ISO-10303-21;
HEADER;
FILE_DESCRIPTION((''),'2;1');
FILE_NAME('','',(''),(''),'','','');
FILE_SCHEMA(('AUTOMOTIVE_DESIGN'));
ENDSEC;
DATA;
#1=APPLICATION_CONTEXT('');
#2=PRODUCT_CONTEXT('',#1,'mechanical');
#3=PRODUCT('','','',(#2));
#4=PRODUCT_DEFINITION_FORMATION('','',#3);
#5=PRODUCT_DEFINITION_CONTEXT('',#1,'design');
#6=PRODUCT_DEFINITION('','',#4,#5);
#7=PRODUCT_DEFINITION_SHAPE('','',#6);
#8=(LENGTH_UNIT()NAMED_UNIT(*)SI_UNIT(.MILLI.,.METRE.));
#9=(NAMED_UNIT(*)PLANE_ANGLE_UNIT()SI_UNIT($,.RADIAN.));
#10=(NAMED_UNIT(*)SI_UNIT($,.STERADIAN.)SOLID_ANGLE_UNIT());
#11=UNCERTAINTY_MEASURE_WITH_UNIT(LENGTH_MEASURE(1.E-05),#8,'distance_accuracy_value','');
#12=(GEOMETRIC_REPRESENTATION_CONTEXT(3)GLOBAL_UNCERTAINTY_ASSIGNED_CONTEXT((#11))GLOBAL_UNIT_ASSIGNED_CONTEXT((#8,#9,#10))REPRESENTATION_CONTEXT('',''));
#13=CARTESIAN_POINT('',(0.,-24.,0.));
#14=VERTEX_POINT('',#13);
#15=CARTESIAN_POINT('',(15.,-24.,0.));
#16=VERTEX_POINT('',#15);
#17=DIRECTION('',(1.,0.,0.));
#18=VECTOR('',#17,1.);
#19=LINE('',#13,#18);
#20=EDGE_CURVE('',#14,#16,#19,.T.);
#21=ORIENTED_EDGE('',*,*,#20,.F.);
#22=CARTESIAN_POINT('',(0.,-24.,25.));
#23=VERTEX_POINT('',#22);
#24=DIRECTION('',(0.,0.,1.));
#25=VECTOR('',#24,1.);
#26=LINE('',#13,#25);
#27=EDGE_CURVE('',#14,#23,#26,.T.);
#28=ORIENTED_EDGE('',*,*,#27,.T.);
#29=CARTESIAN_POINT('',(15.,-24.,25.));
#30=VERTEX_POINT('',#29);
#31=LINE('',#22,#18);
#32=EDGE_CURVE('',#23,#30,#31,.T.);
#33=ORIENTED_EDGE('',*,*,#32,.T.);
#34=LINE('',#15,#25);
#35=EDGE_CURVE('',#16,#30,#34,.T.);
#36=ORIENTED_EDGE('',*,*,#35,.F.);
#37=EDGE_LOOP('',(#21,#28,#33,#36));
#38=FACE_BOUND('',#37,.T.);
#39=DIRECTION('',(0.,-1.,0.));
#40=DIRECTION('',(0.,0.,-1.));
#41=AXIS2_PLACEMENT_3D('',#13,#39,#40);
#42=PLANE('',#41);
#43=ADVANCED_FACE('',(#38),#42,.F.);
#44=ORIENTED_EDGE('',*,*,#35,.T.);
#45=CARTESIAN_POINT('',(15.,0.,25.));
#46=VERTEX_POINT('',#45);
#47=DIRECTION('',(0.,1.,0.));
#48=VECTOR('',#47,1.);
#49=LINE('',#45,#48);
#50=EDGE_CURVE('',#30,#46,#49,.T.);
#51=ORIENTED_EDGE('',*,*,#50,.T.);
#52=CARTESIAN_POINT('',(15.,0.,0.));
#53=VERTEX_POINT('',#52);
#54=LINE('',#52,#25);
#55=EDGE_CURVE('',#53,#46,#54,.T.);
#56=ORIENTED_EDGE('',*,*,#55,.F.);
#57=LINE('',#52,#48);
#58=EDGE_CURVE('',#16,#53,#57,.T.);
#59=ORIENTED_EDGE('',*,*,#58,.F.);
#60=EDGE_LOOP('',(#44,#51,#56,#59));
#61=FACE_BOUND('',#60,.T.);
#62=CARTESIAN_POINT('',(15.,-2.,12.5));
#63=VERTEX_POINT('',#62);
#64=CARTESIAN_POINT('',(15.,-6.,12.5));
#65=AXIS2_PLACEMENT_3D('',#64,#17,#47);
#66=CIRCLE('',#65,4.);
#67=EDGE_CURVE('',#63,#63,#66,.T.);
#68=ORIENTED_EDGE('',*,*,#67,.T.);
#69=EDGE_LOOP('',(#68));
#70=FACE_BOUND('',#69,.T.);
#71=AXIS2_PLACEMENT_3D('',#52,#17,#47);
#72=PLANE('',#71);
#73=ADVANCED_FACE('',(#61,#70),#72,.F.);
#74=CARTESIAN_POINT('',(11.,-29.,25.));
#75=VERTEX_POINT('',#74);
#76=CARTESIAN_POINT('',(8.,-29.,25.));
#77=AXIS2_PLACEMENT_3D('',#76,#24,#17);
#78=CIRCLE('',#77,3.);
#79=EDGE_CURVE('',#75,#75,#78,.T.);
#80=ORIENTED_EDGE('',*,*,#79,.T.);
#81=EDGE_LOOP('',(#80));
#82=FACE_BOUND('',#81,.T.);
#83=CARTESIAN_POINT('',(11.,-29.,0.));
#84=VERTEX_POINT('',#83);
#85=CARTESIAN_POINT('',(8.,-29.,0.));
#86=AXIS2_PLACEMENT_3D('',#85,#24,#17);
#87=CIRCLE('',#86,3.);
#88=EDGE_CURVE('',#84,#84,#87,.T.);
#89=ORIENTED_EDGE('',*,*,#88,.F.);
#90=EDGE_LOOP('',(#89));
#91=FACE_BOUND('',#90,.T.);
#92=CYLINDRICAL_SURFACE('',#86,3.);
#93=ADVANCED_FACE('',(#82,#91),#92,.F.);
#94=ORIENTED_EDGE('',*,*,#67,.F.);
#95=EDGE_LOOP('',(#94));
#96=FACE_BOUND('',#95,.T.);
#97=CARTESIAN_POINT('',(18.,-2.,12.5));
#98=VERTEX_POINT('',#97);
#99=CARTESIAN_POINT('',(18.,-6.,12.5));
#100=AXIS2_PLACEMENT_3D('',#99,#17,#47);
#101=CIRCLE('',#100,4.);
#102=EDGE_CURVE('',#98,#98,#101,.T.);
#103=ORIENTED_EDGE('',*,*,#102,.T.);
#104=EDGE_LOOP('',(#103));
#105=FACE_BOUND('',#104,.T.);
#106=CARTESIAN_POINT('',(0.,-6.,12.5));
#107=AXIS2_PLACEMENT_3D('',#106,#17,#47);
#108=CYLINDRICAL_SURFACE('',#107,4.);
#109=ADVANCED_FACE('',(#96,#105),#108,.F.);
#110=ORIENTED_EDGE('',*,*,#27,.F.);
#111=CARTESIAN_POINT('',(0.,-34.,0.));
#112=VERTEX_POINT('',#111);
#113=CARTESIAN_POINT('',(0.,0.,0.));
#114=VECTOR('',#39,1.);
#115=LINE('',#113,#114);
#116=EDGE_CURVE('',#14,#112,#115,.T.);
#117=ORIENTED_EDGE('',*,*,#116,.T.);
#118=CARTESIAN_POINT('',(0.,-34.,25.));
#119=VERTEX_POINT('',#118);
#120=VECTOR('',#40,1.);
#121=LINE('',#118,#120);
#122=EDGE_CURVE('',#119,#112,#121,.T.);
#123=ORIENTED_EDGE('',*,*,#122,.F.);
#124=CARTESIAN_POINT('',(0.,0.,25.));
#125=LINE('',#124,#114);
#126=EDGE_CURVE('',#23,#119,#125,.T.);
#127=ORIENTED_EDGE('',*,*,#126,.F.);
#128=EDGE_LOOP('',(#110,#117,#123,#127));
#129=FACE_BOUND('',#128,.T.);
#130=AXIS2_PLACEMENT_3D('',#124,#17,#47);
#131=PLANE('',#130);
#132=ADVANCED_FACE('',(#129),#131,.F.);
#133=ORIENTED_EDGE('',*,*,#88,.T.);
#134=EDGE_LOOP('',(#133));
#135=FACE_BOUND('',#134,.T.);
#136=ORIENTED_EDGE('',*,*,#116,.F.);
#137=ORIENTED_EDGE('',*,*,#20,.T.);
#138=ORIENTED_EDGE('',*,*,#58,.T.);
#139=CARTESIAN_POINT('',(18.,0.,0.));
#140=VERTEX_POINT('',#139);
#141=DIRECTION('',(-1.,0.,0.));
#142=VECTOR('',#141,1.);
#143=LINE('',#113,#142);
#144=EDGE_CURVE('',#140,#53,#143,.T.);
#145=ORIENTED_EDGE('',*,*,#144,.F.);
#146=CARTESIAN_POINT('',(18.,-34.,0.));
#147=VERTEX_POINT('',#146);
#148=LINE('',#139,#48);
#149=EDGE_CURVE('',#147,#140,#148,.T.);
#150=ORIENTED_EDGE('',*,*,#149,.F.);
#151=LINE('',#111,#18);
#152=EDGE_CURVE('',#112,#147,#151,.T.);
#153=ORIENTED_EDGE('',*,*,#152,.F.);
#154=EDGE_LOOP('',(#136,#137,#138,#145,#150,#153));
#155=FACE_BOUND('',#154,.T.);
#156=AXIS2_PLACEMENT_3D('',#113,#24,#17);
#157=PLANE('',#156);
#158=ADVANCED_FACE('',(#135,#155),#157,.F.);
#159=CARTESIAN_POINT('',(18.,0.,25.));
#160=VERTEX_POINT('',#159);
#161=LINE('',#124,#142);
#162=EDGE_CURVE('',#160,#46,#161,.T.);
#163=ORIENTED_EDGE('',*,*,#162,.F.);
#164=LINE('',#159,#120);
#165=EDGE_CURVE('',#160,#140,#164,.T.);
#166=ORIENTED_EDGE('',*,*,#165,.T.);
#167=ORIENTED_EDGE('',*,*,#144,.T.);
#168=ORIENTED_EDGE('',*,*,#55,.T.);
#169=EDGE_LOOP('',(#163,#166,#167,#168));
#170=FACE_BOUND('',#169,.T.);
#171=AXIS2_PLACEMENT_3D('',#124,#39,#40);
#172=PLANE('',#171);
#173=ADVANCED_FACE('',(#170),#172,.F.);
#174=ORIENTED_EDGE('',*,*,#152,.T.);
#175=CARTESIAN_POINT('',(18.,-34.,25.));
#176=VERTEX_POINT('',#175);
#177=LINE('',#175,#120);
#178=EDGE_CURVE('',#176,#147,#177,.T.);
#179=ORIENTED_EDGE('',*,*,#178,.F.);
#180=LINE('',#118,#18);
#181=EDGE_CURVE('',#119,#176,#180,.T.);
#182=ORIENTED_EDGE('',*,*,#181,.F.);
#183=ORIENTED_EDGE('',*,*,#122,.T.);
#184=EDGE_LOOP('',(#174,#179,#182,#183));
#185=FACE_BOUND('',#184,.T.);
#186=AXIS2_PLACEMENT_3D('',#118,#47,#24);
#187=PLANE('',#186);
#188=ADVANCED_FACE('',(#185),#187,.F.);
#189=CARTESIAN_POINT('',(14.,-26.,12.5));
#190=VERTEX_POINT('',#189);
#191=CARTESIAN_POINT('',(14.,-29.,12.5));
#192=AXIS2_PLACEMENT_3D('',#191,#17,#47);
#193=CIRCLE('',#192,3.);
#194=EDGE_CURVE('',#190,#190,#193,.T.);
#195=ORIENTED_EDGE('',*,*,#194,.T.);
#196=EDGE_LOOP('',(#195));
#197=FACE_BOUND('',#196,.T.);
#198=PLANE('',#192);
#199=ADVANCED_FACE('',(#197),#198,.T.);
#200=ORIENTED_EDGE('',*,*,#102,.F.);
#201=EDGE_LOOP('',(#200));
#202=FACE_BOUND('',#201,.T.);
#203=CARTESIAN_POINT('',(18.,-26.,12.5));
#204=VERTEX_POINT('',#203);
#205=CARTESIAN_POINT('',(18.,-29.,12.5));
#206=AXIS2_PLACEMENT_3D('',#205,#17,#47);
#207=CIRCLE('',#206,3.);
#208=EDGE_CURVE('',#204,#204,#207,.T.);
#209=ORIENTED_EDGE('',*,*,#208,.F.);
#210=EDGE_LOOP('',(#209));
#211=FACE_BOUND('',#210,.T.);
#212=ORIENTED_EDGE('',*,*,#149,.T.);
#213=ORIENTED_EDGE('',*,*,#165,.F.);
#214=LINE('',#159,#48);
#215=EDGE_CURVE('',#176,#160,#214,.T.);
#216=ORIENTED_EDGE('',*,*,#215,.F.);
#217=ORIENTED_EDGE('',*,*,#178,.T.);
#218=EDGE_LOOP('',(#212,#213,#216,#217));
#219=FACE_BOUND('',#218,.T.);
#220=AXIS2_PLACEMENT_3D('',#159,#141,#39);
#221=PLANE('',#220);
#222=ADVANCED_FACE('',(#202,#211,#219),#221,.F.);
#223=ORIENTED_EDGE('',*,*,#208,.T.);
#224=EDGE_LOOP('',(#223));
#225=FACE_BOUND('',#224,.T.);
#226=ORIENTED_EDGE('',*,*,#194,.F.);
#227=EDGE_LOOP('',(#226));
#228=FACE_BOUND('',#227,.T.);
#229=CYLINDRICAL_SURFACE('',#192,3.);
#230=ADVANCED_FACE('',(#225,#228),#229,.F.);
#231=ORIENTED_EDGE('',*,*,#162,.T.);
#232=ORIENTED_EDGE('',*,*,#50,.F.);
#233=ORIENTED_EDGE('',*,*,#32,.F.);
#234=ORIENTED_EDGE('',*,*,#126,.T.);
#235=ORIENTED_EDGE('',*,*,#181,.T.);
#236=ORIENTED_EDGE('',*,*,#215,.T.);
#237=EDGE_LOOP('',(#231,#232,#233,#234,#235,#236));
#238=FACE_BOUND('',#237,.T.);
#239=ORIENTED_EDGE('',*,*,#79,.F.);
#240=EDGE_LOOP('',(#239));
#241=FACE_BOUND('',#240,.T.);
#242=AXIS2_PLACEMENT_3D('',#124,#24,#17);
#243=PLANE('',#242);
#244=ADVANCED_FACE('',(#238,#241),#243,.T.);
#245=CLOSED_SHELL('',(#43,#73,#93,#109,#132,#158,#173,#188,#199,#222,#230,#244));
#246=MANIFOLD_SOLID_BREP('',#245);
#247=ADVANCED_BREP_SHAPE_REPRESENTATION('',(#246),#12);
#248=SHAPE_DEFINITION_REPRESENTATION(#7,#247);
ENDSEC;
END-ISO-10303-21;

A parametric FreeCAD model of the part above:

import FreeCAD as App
import Part
import Sketcher
Q = App.Units.Quantity

doc = App.newDocument("Part")
body = doc.addObject("PartDesign::Body", "Body")

sketch1 = doc.addObject("Sketcher::SketchObject", "Sketch")
body.addObject(sketch1)
sketch1.AttachmentSupport = (doc.XY_Plane, [""])
sketch1.MapMode = "FlatFace"
sketch1.addGeometry([
    Part.LineSegment(App.Vector(0, 0, 0), App.Vector(0, -34, 0)),
    Part.LineSegment(App.Vector(0, -34, 0), App.Vector(18, -34, 0)),
    Part.LineSegment(App.Vector(18, -34, 0), App.Vector(18, 0, 0)),
    Part.LineSegment(App.Vector(18, 0, 0), App.Vector(0, 0, 0)),
], False)
sketch1.addConstraint([
    Sketcher.Constraint("Coincident", 0, 2, 1, 1),
    Sketcher.Constraint("Coincident", 1, 2, 2, 1),
    Sketcher.Constraint("Coincident", 2, 2, 3, 1),
    Sketcher.Constraint("Coincident", 3, 2, 0, 1),
    Sketcher.Constraint("Vertical", 0),
    Sketcher.Constraint("Horizontal", 1),
    Sketcher.Constraint("Vertical", 2),
    Sketcher.Constraint("Horizontal", 3),
    Sketcher.Constraint("Coincident", 3, 2, -1, 1),
    Sketcher.Constraint("DistanceX", 1, 1, 1, 2, Q("18 mm")),
    Sketcher.Constraint("DistanceY", 0, 2, 0, 1, Q("34 mm")),
])
pad1 = doc.addObject("PartDesign::Pad", "Pad")
body.addObject(pad1)
pad1.Profile = sketch1
pad1.Length = 25

sketch2 = doc.addObject("Sketcher::SketchObject", "Sketch001")
body.addObject(sketch2)
sketch2.AttachmentSupport = (doc.XY_Plane, [""])
sketch2.MapMode = "FlatFace"
sketch2.AttachmentOffset = App.Placement(App.Vector(0, 0, 25), App.Rotation())
sketch2.addGeometry([
    Part.Circle(App.Vector(8, -29, 0), App.Vector(0, 0, 1), 3),
    Part.LineSegment(App.Vector(0, 0, 0), App.Vector(0, -24, 0)),
    Part.LineSegment(App.Vector(0, -24, 0), App.Vector(15, -24, 0)),
    Part.LineSegment(App.Vector(15, -24, 0), App.Vector(15, 0, 0)),
    Part.LineSegment(App.Vector(15, 0, 0), App.Vector(0, 0, 0)),
], False)
sketch2.addConstraint([
    Sketcher.Constraint("Coincident", 1, 2, 2, 1),
    Sketcher.Constraint("Coincident", 2, 2, 3, 1),
    Sketcher.Constraint("Coincident", 3, 2, 4, 1),
    Sketcher.Constraint("Coincident", 4, 2, 1, 1),
    Sketcher.Constraint("Vertical", 1),
    Sketcher.Constraint("Horizontal", 2),
    Sketcher.Constraint("Vertical", 3),
    Sketcher.Constraint("Horizontal", 4),
    Sketcher.Constraint("Coincident", 4, 2, -1, 1),
    Sketcher.Constraint("Diameter", 0, Q("6 mm")),
    Sketcher.Constraint("DistanceX", 2, 1, 2, 2, Q("15 mm")),
    Sketcher.Constraint("DistanceY", 1, 2, 1, 1, Q("24 mm")),
    Sketcher.Constraint("DistanceX", -1, 1, 0, 3, Q("8 mm")),
    Sketcher.Constraint("DistanceY", 0, 3, -1, 1, Q("29 mm")),
])
pocket1 = doc.addObject("PartDesign::Pocket", "Pocket")
body.addObject(pocket1)
pocket1.Profile = sketch2
pocket1.Type = "ThroughAll"

sketch3 = doc.addObject("Sketcher::SketchObject", "Sketch002")
body.addObject(sketch3)
sketch3.AttachmentSupport = (doc.YZ_Plane, [""])
sketch3.MapMode = "FlatFace"
sketch3.AttachmentOffset = App.Placement(App.Vector(0, 0, 18), App.Rotation())
sketch3.addGeometry(Part.Circle(App.Vector(-29, 12.5, 0), App.Vector(0, 0, 1), 3), False)
sketch3.addConstraint([
    Sketcher.Constraint("Diameter", 0, Q("6 mm")),
    Sketcher.Constraint("DistanceX", 0, 3, -1, 1, Q("29 mm")),
    Sketcher.Constraint("DistanceY", -1, 1, 0, 3, Q("12.5 mm")),
])
pocket2 = doc.addObject("PartDesign::Pocket", "Pocket001")
body.addObject(pocket2)
pocket2.Profile = sketch3
pocket2.Length = 4

sketch4 = doc.addObject("Sketcher::SketchObject", "Sketch003")
body.addObject(sketch4)
sketch4.AttachmentSupport = (doc.YZ_Plane, [""])
sketch4.MapMode = "FlatFace"
sketch4.AttachmentOffset = App.Placement(App.Vector(0, 0, 18), App.Rotation())
sketch4.addGeometry(Part.Circle(App.Vector(-6, 12.5, 0), App.Vector(0, 0, 1), 4), False)
sketch4.addConstraint([
    Sketcher.Constraint("Diameter", 0, Q("8 mm")),
    Sketcher.Constraint("DistanceX", 0, 3, -1, 1, Q("6 mm")),
    Sketcher.Constraint("DistanceY", -1, 1, 0, 3, Q("12.5 mm")),
])
pocket3 = doc.addObject("PartDesign::Pocket", "Pocket002")
body.addObject(pocket3)
pocket3.Profile = sketch4
pocket3.Type = "ThroughAll"

doc.recompute()
